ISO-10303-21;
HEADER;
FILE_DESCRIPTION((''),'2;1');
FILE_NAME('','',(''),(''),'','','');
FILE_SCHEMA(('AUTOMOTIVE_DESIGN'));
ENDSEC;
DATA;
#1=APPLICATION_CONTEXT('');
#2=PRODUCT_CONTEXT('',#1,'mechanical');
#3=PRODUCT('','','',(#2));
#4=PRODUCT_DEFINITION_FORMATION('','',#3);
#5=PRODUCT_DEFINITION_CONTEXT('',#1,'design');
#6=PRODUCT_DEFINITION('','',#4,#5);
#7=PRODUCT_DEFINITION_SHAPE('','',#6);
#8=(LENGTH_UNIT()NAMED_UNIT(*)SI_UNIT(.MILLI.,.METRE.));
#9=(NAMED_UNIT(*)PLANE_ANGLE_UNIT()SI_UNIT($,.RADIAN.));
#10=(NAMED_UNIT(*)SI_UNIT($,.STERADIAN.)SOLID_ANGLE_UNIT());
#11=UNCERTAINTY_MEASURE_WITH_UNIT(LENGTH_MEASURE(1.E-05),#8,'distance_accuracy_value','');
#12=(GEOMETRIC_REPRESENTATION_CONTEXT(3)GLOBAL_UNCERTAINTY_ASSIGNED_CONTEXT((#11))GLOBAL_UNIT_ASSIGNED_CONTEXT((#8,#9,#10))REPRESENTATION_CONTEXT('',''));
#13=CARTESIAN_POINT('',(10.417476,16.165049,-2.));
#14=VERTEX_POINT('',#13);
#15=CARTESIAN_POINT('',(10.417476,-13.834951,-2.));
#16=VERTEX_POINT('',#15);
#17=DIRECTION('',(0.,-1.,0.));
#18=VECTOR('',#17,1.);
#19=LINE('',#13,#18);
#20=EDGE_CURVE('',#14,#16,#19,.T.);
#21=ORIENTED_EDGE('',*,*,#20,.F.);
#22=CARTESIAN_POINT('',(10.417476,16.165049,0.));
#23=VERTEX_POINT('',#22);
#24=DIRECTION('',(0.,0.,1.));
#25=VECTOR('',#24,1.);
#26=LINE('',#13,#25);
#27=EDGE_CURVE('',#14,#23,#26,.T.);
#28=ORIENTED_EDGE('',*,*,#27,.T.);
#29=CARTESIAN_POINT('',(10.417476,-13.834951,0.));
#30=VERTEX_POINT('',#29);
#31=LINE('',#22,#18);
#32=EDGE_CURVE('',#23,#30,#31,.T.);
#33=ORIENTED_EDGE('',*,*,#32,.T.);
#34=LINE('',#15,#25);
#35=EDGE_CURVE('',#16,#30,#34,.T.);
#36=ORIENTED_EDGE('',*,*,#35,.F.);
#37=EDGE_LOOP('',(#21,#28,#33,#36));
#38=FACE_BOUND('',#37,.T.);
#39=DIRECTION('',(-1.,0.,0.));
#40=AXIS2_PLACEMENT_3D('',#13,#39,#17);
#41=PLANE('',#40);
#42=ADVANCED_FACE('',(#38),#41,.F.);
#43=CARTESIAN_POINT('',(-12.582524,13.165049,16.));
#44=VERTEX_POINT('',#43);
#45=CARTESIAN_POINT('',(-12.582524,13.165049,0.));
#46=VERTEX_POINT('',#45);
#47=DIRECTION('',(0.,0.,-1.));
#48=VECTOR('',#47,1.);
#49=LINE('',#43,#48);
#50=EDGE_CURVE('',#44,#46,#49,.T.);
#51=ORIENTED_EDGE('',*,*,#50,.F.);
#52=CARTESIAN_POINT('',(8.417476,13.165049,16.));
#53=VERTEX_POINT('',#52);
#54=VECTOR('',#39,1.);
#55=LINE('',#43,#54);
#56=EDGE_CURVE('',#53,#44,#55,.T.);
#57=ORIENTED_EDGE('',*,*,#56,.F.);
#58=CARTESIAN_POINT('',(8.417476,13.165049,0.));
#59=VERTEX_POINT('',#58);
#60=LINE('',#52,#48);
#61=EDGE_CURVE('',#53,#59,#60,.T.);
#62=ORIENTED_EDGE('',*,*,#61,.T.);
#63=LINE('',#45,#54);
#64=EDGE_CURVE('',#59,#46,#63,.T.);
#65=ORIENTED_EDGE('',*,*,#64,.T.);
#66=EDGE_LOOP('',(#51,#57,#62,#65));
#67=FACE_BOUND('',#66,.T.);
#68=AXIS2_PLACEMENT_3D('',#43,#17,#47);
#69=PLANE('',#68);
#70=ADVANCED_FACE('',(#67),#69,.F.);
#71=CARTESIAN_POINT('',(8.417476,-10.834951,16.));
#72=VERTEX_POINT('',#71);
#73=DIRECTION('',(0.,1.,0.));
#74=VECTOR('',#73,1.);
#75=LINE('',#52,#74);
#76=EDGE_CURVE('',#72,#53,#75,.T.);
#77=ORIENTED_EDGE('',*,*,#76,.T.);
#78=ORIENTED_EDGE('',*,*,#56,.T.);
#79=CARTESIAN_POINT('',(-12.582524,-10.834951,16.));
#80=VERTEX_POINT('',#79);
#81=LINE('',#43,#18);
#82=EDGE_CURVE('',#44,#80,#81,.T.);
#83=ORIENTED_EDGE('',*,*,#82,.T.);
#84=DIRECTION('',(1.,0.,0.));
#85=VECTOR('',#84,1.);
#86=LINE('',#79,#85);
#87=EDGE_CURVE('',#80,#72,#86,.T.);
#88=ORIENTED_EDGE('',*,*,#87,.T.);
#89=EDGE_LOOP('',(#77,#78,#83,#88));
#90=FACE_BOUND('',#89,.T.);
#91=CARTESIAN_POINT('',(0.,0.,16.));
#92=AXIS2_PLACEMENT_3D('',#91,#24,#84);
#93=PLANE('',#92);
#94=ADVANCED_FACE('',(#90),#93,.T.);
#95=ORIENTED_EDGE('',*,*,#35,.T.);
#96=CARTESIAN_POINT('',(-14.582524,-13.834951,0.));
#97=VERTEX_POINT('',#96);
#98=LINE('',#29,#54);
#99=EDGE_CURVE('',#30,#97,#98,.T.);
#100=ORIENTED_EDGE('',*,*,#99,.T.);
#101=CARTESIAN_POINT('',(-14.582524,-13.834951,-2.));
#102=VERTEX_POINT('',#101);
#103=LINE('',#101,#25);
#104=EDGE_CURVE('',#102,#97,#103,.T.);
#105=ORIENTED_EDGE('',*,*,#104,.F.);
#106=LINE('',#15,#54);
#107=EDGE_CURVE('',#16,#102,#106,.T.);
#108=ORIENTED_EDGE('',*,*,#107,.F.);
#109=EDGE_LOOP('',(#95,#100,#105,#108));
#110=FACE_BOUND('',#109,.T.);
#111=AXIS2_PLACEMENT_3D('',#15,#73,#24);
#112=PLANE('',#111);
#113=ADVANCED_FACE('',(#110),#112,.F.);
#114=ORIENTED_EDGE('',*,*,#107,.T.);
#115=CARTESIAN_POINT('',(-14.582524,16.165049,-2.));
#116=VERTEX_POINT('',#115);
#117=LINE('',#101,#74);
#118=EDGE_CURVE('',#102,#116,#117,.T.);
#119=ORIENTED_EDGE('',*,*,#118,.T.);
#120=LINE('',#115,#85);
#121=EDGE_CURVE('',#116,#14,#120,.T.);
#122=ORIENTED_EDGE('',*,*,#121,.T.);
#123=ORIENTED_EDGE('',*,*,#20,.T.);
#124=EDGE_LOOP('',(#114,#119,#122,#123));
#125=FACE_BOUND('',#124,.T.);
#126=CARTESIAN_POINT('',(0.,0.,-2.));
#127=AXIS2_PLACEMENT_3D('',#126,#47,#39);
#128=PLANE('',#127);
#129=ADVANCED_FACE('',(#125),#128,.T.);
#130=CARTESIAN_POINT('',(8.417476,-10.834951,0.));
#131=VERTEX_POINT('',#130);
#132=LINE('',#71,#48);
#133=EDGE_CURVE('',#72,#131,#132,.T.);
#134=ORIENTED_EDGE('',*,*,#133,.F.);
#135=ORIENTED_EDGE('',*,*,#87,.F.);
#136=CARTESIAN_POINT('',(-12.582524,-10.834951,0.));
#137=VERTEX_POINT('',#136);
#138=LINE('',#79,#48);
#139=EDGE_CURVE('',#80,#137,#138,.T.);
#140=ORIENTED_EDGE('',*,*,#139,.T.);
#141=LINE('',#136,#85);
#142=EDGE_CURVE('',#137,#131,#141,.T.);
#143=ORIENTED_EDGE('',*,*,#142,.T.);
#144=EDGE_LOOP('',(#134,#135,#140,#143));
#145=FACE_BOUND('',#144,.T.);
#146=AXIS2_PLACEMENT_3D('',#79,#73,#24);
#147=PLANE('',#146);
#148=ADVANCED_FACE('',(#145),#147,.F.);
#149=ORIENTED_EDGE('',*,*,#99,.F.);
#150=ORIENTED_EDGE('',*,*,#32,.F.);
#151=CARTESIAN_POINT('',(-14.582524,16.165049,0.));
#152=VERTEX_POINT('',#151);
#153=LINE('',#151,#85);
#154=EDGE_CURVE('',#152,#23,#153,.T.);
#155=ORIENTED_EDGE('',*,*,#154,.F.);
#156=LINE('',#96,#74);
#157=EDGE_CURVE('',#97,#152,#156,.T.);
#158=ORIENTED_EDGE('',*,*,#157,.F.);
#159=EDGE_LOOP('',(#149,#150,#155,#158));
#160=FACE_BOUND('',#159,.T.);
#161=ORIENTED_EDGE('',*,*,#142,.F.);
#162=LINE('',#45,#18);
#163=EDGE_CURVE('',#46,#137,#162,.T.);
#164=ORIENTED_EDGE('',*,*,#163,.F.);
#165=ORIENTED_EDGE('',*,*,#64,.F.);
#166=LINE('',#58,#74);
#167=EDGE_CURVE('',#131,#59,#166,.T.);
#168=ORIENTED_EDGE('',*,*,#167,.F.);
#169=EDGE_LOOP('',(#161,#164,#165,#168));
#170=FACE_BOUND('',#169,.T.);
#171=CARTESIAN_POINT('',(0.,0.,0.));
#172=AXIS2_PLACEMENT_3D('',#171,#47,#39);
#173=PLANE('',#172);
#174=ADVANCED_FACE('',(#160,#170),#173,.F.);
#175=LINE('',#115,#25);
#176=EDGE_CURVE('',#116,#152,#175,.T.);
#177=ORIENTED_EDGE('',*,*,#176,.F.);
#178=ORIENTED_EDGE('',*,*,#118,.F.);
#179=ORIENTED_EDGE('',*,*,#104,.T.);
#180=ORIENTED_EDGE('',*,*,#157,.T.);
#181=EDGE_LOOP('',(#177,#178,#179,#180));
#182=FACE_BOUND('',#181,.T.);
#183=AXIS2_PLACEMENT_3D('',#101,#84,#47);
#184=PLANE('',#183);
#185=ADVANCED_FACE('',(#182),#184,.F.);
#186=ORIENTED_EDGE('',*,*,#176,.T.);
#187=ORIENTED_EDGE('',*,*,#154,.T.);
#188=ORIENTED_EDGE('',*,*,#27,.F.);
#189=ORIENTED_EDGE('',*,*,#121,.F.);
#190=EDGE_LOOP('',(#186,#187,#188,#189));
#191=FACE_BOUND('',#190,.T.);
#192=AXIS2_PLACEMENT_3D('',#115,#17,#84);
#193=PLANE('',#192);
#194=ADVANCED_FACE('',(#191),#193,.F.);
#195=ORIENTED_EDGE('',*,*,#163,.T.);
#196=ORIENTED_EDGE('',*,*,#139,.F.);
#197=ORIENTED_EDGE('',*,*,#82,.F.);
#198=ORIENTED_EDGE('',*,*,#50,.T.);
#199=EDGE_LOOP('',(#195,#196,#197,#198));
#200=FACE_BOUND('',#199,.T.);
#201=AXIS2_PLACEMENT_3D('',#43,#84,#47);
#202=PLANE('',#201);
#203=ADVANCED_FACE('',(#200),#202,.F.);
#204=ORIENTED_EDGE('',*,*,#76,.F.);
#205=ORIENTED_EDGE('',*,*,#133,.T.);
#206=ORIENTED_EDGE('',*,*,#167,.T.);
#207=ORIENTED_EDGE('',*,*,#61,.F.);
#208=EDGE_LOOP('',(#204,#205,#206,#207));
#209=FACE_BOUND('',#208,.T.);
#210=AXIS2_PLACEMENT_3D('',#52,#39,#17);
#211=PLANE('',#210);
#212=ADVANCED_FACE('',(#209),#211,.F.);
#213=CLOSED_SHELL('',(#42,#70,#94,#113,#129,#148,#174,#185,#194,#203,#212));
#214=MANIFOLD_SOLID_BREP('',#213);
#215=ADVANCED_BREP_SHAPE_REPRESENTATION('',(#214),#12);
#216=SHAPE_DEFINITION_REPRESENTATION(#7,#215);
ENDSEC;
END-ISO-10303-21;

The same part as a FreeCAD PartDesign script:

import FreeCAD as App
import Part
import Sketcher

V = App.Vector


def add_polygon(sketch, points):
    """Adds a closed chain of lines whose ends are joined by coincident constraints."""
    first, n = sketch.GeometryCount, len(points)
    for a, b in zip(points, points[1:] + points[:1]):
        sketch.addGeometry(Part.LineSegment(App.Vector(*a, 0), App.Vector(*b, 0)), False)
    for i in range(n):
        sketch.addConstraint(Sketcher.Constraint("Coincident", first + i, 2, first + (i + 1) % n, 1))

doc = App.newDocument("Part")
params = doc.addObject("Spreadsheet::Sheet", "Params")
for row, (alias, value) in enumerate([
    ("sketch1_width", "21 mm"),
    ("sketch1_height", "24 mm"),
    ("pad1_length", "16 mm"),
    ("sketch2_width", "25 mm"),
    ("sketch2_height", "30 mm"),
    ("pad2_length", "2 mm"),
], start=1):
    params.set(f"A{row}", alias)
    params.set(f"B{row}", "=" + value)
    params.setAlias(f"B{row}", alias)

body = doc.addObject("PartDesign::Body", "Body")

# Sketch on XY plane
sketch1 = body.newObject("Sketcher::SketchObject", "Sketch")
sketch1.AttachmentSupport = (doc.getObject("XY_Plane"), [""])
sketch1.MapMode = "FlatFace"
add_polygon(sketch1, [(-13, 13), (-13, -11), (8, -11), (8, 13)])  # lines 0-3
sketch1.addConstraint(Sketcher.Constraint("Vertical", 0))
sketch1.addConstraint(Sketcher.Constraint("Horizontal", 1))
sketch1.addConstraint(Sketcher.Constraint("Vertical", 2))
sketch1.addConstraint(Sketcher.Constraint("Horizontal", 3))
sketch1.addConstraint(Sketcher.Constraint("DistanceX", 1, 1, 1, 2, 21.0))
sketch1.addConstraint(Sketcher.Constraint("DistanceY", 0, 2, 0, 1, 24.0))
sketch1.addConstraint(Sketcher.Constraint("DistanceY", 0, 2, -1, 1, 10.834951))
sketch1.addConstraint(Sketcher.Constraint("DistanceX", 0, 2, -1, 1, 12.582524))
sketch1.setExpression("Constraints[8]", "Params.sketch1_width")
sketch1.setExpression("Constraints[9]", "Params.sketch1_height")
pad1 = body.newObject("PartDesign::Pad", "Pad")
pad1.Profile = sketch1
pad1.setExpression("Length", "Params.pad1_length")

# Sketch on XY plane
sketch2 = body.newObject("Sketcher::SketchObject", "Sketch001")
sketch2.AttachmentSupport = (doc.getObject("XY_Plane"), [""])
sketch2.MapMode = "FlatFace"
add_polygon(sketch2, [(10, 16), (10, -14), (-15, -14), (-15, 16)])  # lines 0-3
sketch2.addConstraint(Sketcher.Constraint("Vertical", 0))
sketch2.addConstraint(Sketcher.Constraint("Horizontal", 1))
sketch2.addConstraint(Sketcher.Constraint("Vertical", 2))
sketch2.addConstraint(Sketcher.Constraint("Horizontal", 3))
sketch2.addConstraint(Sketcher.Constraint("DistanceX", 1, 2, 1, 1, 25.0))
sketch2.addConstraint(Sketcher.Constraint("DistanceY", 0, 2, 0, 1, 30.0))
sketch2.addConstraint(Sketcher.Constraint("DistanceY", 0, 2, -1, 1, 13.834951))
sketch2.addConstraint(Sketcher.Constraint("DistanceX", -1, 1, 0, 2, 10.417476))
sketch2.setExpression("Constraints[8]", "Params.sketch2_width")
sketch2.setExpression("Constraints[9]", "Params.sketch2_height")
pad2 = body.newObject("PartDesign::Pad", "Pad001")
pad2.Profile = sketch2
pad2.setExpression("Length", "Params.pad2_length")
pad2.Reversed = True

doc.recompute()
